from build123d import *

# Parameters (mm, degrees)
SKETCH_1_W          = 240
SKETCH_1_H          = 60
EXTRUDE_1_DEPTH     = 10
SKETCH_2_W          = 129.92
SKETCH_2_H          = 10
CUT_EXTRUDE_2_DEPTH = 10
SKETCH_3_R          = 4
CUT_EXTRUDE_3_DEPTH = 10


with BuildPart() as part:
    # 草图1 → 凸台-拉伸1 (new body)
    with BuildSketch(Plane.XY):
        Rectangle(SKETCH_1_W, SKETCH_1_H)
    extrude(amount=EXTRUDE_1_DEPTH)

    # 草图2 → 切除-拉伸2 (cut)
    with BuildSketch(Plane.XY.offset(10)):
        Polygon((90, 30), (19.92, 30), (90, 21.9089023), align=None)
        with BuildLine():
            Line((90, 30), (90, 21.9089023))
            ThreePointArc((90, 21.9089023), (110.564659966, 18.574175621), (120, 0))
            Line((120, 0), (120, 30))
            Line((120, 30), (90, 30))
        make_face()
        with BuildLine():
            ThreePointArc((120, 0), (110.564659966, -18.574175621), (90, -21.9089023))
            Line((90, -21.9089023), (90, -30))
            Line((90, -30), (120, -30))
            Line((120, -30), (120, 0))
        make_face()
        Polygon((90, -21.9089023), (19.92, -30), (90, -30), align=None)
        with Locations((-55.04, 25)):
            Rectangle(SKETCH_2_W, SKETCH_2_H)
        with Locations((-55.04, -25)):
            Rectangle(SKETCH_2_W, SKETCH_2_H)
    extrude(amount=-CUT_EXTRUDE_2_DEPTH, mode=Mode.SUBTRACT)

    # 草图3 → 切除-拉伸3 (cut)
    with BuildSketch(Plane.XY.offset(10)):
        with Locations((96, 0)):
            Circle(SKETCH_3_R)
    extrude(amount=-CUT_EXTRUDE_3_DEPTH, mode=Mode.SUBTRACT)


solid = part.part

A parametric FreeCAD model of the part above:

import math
import FreeCAD as App
import Part
import Sketcher
from FreeCAD import Vector
Q = App.Units.Quantity


def add_polygon(sketch, points):
    """Adds a closed chain of lines whose ends are joined by coincident constraints."""
    first, n = sketch.GeometryCount, len(points)
    for a, b in zip(points, points[1:] + points[:1]):
        sketch.addGeometry(Part.LineSegment(App.Vector(*a, 0), App.Vector(*b, 0)), False)
    for i in range(n):
        sketch.addConstraint(Sketcher.Constraint("Coincident", first + i, 2, first + (i + 1) % n, 1))

doc = App.newDocument("Part")
params = doc.addObject("Spreadsheet::Sheet", "Params")
for row, (alias, value) in enumerate([
    ("sketch1_width", "240 mm"),
    ("sketch1_height", "60 mm"),
    ("pad1_length", "10 mm"),
    ("sketch2_radius", "23 mm"),
    ("sketch2_height", "30 mm"),
    ("sketch2_height2", "10 mm"),
    ("sketch2_width", "100.08 mm"),
    ("pocket1_length", "10 mm"),
    ("sketch3_diameter", "8 mm"),
    ("pocket2_length", "10 mm"),
], start=1):
    params.set(f"A{row}", alias)
    params.set(f"B{row}", "=" + value)
    params.setAlias(f"B{row}", alias)

body = doc.addObject("PartDesign::Body", "Body")

# Sketch on XY plane
sketch1 = doc.addObject("Sketcher::SketchObject", "Sketch")
body.addObject(sketch1)
sketch1.AttachmentSupport = (doc.XY_Plane, [""])
sketch1.MapMode = "FlatFace"
add_polygon(sketch1, [(-120, 30), (-120, -30), (120, -30), (120, 30)])  # lines 0-3
sketch1.addConstraint([
    Sketcher.Constraint("Vertical", 0),
    Sketcher.Constraint("Horizontal", 1),
    Sketcher.Constraint("Vertical", 2),
    Sketcher.Constraint("Horizontal", 3),
    Sketcher.Constraint("Symmetric", 0, 2, 2, 2, -1, 1),
    Sketcher.Constraint("DistanceX", 1, 1, 1, 2, Q("240 mm")),
    Sketcher.Constraint("DistanceY", 0, 2, 0, 1, Q("60 mm")),
])
sketch1.setExpression("Constraints[9]", "Params.sketch1_width")
sketch1.setExpression("Constraints[10]", "Params.sketch1_height")
pad1 = doc.addObject("PartDesign::Pad", "Pad")
body.addObject(pad1)
pad1.Profile = sketch1
pad1.setExpression("Length", "Params.pad1_length")

# Sketch on XY plane
sketch2 = doc.addObject("Sketcher::SketchObject", "Sketch001")
body.addObject(sketch2)
sketch2.AttachmentSupport = (doc.XY_Plane, [""])
sketch2.MapMode = "FlatFace"
sketch2.AttachmentOffset = App.Placement(Vector(0, 0, 10), App.Rotation())
sketch2.addGeometry(Part.LineSegment(Vector(20, 30, 0), Vector(90, 22, 0)), False)  # 0
sketch2.addGeometry(Part.ArcOfCircle(Part.Circle(Vector(97, 0, 0), Vector(0, 0, 1), 23), math.radians(0), math.radians(108)), False)  # 1
sketch2.addGeometry(Part.LineSegment(Vector(120, 0, 0), Vector(120, 30, 0)), False)  # 2
sketch2.addGeometry(Part.LineSegment(Vector(120, 30, 0), Vector(20, 30, 0)), False)  # 3
sketch2.addGeometry(Part.ArcOfCircle(Part.Circle(Vector(97, 0, 0), Vector(0, 0, 1), 23), math.radians(-108), math.radians(0)), False)  # 4
sketch2.addGeometry(Part.LineSegment(Vector(90, -22, 0), Vector(20, -30, 0)), False)  # 5
sketch2.addGeometry(Part.LineSegment(Vector(20, -30, 0), Vector(120, -30, 0)), False)  # 6
sketch2.addGeometry(Part.LineSegment(Vector(120, -30, 0), Vector(120, 0, 0)), False)  # 7
add_polygon(sketch2, [(-120, 30), (-120, 20), (10, 20), (10, 30)])  # lines 8-11
add_polygon(sketch2, [(-120, -20), (-120, -30), (10, -30), (10, -20)])  # lines 12-15
sketch2.addConstraint([
    Sketcher.Constraint("Coincident", 0, 2, 1, 2),
    Sketcher.Constraint("Tangent", 1, 1, 2, 1),
    Sketcher.Constraint("Coincident", 2, 2, 3, 1),
    Sketcher.Constraint("Coincident", 3, 2, 0, 1),
    Sketcher.Constraint("Coincident", 4, 1, 5, 1),
    Sketcher.Constraint("Coincident", 5, 2, 6, 1),
    Sketcher.Constraint("Coincident", 6, 2, 7, 1),
    Sketcher.Constraint("Tangent", 7, 2, 4, 2),
    Sketcher.Constraint("Vertical", 2),
    Sketcher.Constraint("Horizontal", 3),
    Sketcher.Constraint("Horizontal", 6),
    Sketcher.Constraint("Vertical", 7),
    Sketcher.Constraint("Vertical", 8),
    Sketcher.Constraint("Horizontal", 9),
    Sketcher.Constraint("Vertical", 10),
    Sketcher.Constraint("Horizontal", 11),
    Sketcher.Constraint("Vertical", 12),
    Sketcher.Constraint("Horizontal", 13),
    Sketcher.Constraint("Vertical", 14),
    Sketcher.Constraint("Horizontal", 15),
    Sketcher.Constraint("Coincident", 4, 3, 1, 3),
    Sketcher.Constraint("Equal", 1, 4),
    Sketcher.Constraint("Symmetric", 6, 2, 11, 2, -1, 1),
    Sketcher.Constraint("Symmetric", 2, 2, 12, 2, -1, 1),
    Sketcher.Constraint("Symmetric", 0, 2, 4, 1, -1),
    Sketcher.Constraint("Symmetric", 3, 2, 5, 2, -1),
    Sketcher.Constraint("Symmetric", 9, 2, 14, 2, -1),
    Sketcher.Constraint("Radius", 1, Q("23 mm")),
    Sketcher.Constraint("DistanceY", 2, 1, 2, 2, Q("30 mm")),
    Sketcher.Constraint("DistanceY", 8, 2, 8, 1, Q("10 mm")),
    Sketcher.Constraint("DistanceX", -1, 1, 1, 3, Q("97 mm")),
    Sketcher.Constraint("DistanceX", -1, 1, 0, 2, Q("90 mm")),
    Sketcher.Constraint("DistanceX", 9, 2, 3, 2, Q("10 mm")),
    Sketcher.Constraint("DistanceX", 3, 2, 3, 1, Q("100.08 mm")),
])
sketch2.setExpression("Constraints[35]", "Params.sketch2_radius")
sketch2.setExpression("Constraints[36]", "Params.sketch2_height")
sketch2.setExpression("Constraints[37]", "Params.sketch2_height2")
sketch2.setExpression("Constraints[41]", "Params.sketch2_width")
pocket1 = doc.addObject("PartDesign::Pocket", "Pocket")
body.addObject(pocket1)
pocket1.Profile = sketch2
pocket1.setExpression("Length", "Params.pocket1_length")

# Sketch on XY plane
sketch3 = doc.addObject("Sketcher::SketchObject", "Sketch002")
body.addObject(sketch3)
sketch3.AttachmentSupport = (doc.XY_Plane, [""])
sketch3.MapMode = "FlatFace"
sketch3.AttachmentOffset = App.Placement(Vector(0, 0, 10), App.Rotation())
sketch3.addGeometry(Part.Circle(Vector(96, 0, 0), Vector(0, 0, 1), 4), False)
sketch3.addConstraint([
    Sketcher.Constraint("PointOnObject", 0, 3, -1),
    Sketcher.Constraint("Diameter", 0, Q("8 mm")),
    Sketcher.Constraint("DistanceX", -1, 1, 0, 3, Q("96 mm")),
])
sketch3.setExpression("Constraints[1]", "Params.sketch3_diameter")
pocket2 = doc.addObject("PartDesign::Pocket", "Pocket001")
body.addObject(pocket2)
pocket2.Profile = sketch3
pocket2.setExpression("Length", "Params.pocket2_length")

doc.recompute()
